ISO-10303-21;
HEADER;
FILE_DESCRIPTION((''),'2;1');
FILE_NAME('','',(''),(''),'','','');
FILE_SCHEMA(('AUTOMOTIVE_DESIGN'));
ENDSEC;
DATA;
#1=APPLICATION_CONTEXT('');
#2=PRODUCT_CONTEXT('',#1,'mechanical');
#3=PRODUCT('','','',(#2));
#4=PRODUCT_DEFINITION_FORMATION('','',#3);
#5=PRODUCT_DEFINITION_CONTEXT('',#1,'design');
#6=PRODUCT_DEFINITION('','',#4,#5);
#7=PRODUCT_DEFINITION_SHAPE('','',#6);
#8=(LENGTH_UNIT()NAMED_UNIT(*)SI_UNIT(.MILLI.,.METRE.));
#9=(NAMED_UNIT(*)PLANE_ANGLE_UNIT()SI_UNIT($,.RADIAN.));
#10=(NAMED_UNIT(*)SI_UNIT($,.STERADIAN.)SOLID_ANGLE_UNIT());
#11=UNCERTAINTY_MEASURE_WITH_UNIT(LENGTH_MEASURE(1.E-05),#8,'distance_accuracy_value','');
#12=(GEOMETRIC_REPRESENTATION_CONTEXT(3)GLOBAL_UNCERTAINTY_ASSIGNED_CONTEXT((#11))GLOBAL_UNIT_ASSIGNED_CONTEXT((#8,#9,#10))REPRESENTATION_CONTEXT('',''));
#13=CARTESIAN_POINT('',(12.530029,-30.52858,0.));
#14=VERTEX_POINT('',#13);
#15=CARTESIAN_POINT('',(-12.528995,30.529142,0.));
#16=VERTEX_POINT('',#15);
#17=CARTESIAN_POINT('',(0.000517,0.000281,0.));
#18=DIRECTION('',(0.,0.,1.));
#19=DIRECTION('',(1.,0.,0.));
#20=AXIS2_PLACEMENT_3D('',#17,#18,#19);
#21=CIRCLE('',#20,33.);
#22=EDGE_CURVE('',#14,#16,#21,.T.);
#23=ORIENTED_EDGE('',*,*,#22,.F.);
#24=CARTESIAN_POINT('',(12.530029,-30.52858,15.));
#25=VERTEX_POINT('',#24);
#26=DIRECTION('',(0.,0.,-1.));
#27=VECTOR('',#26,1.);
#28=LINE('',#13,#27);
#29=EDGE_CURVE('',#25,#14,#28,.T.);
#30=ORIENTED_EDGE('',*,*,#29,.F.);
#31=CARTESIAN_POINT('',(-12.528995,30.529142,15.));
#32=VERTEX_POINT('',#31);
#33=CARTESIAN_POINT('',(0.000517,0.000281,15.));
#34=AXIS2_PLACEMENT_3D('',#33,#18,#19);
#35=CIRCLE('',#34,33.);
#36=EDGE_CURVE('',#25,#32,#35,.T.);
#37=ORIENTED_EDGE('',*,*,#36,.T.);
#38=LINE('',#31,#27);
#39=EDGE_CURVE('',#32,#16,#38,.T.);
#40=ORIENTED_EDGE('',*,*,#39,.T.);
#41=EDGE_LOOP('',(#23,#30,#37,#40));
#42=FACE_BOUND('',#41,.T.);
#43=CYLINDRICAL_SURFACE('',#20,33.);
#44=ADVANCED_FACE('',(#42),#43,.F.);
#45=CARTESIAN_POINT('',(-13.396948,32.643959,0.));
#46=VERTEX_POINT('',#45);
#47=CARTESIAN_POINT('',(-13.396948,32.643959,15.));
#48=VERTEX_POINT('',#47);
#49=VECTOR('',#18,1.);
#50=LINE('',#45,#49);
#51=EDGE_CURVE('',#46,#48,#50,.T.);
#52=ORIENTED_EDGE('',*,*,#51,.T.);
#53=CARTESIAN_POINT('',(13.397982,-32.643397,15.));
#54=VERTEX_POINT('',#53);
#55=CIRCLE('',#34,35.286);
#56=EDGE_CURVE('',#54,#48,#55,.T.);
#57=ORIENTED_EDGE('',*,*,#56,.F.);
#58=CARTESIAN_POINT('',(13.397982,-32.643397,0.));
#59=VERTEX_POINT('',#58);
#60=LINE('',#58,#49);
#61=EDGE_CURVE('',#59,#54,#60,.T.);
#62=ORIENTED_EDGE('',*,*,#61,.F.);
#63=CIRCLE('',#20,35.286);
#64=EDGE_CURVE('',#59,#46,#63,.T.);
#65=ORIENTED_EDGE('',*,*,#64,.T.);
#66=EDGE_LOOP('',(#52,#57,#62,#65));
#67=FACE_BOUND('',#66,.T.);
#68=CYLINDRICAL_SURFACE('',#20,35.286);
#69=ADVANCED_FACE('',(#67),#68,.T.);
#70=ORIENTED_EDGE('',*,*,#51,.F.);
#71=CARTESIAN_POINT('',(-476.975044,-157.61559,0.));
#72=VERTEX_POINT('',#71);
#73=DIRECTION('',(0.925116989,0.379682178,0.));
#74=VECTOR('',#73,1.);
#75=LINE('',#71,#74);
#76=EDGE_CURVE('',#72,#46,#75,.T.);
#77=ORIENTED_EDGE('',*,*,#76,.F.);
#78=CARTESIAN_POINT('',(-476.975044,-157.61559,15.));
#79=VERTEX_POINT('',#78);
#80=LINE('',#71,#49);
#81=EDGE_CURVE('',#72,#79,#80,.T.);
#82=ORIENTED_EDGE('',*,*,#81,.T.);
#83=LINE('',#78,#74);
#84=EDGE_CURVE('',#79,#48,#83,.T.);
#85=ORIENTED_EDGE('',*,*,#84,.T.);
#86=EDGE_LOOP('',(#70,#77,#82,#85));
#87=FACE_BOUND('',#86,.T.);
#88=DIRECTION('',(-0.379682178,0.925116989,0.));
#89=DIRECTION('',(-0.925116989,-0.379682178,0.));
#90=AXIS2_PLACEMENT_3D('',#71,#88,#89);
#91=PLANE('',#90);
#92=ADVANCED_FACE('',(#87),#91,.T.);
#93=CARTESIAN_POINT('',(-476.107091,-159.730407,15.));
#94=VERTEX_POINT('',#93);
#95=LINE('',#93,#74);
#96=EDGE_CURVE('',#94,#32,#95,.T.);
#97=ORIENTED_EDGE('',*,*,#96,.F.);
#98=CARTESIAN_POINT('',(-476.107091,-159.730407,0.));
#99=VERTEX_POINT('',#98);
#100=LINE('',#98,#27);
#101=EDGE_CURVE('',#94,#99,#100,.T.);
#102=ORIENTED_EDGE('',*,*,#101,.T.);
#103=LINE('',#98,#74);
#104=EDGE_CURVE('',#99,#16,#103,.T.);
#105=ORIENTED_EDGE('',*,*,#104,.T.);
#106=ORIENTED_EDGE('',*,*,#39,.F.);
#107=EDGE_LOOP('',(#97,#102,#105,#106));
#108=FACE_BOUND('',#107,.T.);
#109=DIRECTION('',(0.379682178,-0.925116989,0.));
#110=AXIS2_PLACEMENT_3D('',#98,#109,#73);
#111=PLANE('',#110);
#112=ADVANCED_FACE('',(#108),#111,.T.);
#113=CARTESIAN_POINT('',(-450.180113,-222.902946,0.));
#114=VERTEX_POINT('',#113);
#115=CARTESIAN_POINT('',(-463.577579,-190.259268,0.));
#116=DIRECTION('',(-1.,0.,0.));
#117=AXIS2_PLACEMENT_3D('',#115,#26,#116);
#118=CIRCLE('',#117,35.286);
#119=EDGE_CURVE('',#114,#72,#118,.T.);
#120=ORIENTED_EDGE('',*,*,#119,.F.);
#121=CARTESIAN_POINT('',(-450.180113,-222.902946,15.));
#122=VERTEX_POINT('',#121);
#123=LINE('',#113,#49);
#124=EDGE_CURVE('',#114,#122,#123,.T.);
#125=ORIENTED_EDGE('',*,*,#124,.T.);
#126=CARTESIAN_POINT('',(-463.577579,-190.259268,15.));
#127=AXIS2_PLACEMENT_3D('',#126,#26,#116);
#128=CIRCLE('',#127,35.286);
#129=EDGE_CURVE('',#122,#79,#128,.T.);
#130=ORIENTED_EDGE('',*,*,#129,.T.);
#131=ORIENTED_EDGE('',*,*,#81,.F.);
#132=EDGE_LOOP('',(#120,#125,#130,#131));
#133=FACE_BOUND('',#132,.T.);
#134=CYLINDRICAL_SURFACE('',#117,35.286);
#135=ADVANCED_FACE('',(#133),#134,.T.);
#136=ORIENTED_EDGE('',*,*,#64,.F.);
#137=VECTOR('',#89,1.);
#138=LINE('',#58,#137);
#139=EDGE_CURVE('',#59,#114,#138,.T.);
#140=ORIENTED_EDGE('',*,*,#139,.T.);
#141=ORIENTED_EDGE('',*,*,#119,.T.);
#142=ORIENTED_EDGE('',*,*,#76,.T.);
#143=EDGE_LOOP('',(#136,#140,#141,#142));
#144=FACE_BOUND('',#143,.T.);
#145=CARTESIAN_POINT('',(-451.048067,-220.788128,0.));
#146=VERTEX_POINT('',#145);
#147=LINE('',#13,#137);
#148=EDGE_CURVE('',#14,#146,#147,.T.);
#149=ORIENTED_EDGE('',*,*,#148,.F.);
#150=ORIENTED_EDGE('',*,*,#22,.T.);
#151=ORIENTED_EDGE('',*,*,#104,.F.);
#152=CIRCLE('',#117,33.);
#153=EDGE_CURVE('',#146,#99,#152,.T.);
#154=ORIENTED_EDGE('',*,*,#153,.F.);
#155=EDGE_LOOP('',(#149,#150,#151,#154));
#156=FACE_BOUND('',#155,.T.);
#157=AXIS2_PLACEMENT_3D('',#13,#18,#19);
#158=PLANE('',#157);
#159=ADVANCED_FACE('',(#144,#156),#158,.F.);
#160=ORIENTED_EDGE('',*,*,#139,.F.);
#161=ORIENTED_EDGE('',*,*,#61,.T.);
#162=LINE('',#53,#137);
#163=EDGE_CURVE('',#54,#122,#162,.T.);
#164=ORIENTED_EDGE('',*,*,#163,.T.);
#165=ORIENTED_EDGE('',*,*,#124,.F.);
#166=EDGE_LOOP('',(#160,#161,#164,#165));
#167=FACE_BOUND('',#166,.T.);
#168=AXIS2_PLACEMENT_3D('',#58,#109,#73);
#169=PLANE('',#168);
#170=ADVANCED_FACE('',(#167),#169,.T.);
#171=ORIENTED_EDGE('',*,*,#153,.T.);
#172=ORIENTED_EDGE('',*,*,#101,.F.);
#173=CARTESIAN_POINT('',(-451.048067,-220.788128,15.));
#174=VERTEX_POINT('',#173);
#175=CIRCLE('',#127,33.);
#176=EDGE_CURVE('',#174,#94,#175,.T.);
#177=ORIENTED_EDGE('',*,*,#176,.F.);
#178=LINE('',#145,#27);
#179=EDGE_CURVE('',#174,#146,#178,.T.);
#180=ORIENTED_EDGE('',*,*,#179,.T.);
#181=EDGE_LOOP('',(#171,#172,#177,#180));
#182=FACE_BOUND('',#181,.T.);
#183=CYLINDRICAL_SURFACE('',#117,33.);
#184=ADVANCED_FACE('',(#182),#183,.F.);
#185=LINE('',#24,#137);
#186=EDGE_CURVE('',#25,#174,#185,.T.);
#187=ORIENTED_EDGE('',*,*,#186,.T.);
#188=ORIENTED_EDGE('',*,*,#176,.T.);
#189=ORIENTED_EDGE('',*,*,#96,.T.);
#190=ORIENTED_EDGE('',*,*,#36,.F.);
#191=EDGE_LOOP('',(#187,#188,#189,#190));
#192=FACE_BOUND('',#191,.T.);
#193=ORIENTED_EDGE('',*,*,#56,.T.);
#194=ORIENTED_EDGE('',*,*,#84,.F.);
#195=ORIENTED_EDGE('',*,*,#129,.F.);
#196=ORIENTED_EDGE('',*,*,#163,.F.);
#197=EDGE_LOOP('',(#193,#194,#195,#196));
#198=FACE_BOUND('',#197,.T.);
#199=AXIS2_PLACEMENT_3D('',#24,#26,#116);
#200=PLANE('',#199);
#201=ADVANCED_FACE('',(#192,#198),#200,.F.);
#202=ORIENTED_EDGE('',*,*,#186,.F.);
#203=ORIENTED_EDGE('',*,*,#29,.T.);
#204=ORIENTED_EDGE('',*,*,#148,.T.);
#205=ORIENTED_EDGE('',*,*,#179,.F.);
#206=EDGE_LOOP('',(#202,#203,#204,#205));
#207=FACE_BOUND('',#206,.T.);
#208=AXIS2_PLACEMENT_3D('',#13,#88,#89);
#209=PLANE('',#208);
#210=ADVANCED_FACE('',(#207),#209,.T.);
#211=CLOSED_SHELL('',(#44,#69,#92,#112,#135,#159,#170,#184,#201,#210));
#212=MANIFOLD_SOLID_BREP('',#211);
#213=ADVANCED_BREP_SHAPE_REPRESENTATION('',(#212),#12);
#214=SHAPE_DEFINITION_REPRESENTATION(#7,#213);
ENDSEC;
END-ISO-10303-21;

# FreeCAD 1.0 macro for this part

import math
import FreeCAD as App
import Part
import Sketcher

V = App.Vector
Q = App.Units.Quantity

doc = App.newDocument("Part")
params = doc.addObject("Spreadsheet::Sheet", "Params")
for row, (alias, value) in enumerate([
    ("sketch1_width", "15 mm"),
    ("sketch2_radius", "33 mm"),
    ("sketch2_radius2", "33 mm"),
], start=1):
    params.set(f"A{row}", alias)
    params.set(f"B{row}", "=" + value)
    params.setAlias(f"B{row}", alias)

body = doc.addObject("PartDesign::Body", "Body")

sketch1 = body.newObject("Sketcher::SketchObject", "Sketch")
sketch1.Placement = App.Placement(V(-12.528995, 30.529142, 0), App.Rotation(V(0, 0, -1), V(-0.379682178, 0.925116989, 0), V(0.925116989, 0.379682178, 0), "ZXY"))
sketch1.addGeometry([
    Part.LineSegment(V(-15, 2.286, 0), V(-15, 0, 0)),
    Part.LineSegment(V(-15, 0, 0), V(0, 0, 0)),
    Part.LineSegment(V(0, 0, 0), V(0, 2.286, 0)),
    Part.LineSegment(V(0, 2.286, 0), V(-15, 2.286, 0)),
], False)
sketch1.addConstraint([
    Sketcher.Constraint("Coincident", 0, 2, 1, 1),
    Sketcher.Constraint("Coincident", 1, 2, 2, 1),
    Sketcher.Constraint("Coincident", 2, 2, 3, 1),
    Sketcher.Constraint("Coincident", 3, 2, 0, 1),
    Sketcher.Constraint("Vertical", 0),
    Sketcher.Constraint("Horizontal", 1),
    Sketcher.Constraint("Vertical", 2),
    Sketcher.Constraint("Horizontal", 3),
    Sketcher.Constraint("Coincident", 1, 2, -1, 1),
    Sketcher.Constraint("DistanceX", 1, 1, 1, 2, Q("15 mm")),
    Sketcher.Constraint("DistanceY", 0, 2, 0, 1, Q("2.286 mm")),
])
sketch1.setExpression("Constraints[9]", "Params.sketch1_width")

sketch2 = body.newObject("Sketcher::SketchObject", "Sketch001")
sketch2.AttachmentSupport = (doc.getObject("XY_Plane"), [""])
sketch2.MapMode = "FlatFace"
sketch2.addGeometry([
    Part.LineSegment(V(12.530029, -30.52858, 0), V(-451.048067, -220.788128, 0)),
    Part.ArcOfCircle(Part.Circle(V(-463.577579, -190.259268, 0), V(0, 0, 1), 33), math.radians(112.313997), math.radians(292.313997)),
    Part.LineSegment(V(-476.107091, -159.730407, 0), V(-12.528995, 30.529142, 0)),
    Part.ArcOfCircle(Part.Circle(V(0.000517, 0.000281, 0), V(0, 0, 1), 33), math.radians(-67.686003), math.radians(112.313997)),
], False)
sketch2.addConstraint([
    Sketcher.Constraint("Coincident", 0, 2, 1, 2),
    Sketcher.Constraint("Coincident", 1, 1, 2, 1),
    Sketcher.Constraint("Coincident", 2, 2, 3, 2),
    Sketcher.Constraint("Coincident", 3, 1, 0, 1),
    Sketcher.Constraint("Radius", 1, Q("33 mm")),
    Sketcher.Constraint("Radius", 3, Q("33 mm")),
    Sketcher.Constraint("DistanceX", 1, 3, -1, 1, Q("463.577579 mm")),
    Sketcher.Constraint("DistanceY", -1, 1, 3, 3, Q("0.000281 mm")),
    Sketcher.Constraint("DistanceY", 0, 2, -1, 1, Q("220.788128 mm")),
    Sketcher.Constraint("DistanceX", 1, 1, -1, 1, Q("476.107091 mm")),
    Sketcher.Constraint("DistanceY", -1, 1, 2, 2, Q("30.529142 mm")),
    Sketcher.Constraint("DistanceX", -1, 1, 3, 1, Q("12.530029 mm")),
    Sketcher.Constraint("DistanceY", 3, 1, -1, 1, Q("30.52858 mm")),
    Sketcher.Constraint("DistanceY", 1, 3, 3, 3, Q("190.259549 mm")),
])
sketch2.setExpression("Constraints[4]", "Params.sketch2_radius")
sketch2.setExpression("Constraints[5]", "Params.sketch2_radius2")
doc.recompute()

additivepipe = body.newObject("PartDesign::AdditivePipe", "AdditivePipe")
additivepipe.Profile = sketch1
additivepipe.Spine = (sketch2, ["Edge1", "Edge2", "Edge3", "Edge4"])

doc.recompute()
